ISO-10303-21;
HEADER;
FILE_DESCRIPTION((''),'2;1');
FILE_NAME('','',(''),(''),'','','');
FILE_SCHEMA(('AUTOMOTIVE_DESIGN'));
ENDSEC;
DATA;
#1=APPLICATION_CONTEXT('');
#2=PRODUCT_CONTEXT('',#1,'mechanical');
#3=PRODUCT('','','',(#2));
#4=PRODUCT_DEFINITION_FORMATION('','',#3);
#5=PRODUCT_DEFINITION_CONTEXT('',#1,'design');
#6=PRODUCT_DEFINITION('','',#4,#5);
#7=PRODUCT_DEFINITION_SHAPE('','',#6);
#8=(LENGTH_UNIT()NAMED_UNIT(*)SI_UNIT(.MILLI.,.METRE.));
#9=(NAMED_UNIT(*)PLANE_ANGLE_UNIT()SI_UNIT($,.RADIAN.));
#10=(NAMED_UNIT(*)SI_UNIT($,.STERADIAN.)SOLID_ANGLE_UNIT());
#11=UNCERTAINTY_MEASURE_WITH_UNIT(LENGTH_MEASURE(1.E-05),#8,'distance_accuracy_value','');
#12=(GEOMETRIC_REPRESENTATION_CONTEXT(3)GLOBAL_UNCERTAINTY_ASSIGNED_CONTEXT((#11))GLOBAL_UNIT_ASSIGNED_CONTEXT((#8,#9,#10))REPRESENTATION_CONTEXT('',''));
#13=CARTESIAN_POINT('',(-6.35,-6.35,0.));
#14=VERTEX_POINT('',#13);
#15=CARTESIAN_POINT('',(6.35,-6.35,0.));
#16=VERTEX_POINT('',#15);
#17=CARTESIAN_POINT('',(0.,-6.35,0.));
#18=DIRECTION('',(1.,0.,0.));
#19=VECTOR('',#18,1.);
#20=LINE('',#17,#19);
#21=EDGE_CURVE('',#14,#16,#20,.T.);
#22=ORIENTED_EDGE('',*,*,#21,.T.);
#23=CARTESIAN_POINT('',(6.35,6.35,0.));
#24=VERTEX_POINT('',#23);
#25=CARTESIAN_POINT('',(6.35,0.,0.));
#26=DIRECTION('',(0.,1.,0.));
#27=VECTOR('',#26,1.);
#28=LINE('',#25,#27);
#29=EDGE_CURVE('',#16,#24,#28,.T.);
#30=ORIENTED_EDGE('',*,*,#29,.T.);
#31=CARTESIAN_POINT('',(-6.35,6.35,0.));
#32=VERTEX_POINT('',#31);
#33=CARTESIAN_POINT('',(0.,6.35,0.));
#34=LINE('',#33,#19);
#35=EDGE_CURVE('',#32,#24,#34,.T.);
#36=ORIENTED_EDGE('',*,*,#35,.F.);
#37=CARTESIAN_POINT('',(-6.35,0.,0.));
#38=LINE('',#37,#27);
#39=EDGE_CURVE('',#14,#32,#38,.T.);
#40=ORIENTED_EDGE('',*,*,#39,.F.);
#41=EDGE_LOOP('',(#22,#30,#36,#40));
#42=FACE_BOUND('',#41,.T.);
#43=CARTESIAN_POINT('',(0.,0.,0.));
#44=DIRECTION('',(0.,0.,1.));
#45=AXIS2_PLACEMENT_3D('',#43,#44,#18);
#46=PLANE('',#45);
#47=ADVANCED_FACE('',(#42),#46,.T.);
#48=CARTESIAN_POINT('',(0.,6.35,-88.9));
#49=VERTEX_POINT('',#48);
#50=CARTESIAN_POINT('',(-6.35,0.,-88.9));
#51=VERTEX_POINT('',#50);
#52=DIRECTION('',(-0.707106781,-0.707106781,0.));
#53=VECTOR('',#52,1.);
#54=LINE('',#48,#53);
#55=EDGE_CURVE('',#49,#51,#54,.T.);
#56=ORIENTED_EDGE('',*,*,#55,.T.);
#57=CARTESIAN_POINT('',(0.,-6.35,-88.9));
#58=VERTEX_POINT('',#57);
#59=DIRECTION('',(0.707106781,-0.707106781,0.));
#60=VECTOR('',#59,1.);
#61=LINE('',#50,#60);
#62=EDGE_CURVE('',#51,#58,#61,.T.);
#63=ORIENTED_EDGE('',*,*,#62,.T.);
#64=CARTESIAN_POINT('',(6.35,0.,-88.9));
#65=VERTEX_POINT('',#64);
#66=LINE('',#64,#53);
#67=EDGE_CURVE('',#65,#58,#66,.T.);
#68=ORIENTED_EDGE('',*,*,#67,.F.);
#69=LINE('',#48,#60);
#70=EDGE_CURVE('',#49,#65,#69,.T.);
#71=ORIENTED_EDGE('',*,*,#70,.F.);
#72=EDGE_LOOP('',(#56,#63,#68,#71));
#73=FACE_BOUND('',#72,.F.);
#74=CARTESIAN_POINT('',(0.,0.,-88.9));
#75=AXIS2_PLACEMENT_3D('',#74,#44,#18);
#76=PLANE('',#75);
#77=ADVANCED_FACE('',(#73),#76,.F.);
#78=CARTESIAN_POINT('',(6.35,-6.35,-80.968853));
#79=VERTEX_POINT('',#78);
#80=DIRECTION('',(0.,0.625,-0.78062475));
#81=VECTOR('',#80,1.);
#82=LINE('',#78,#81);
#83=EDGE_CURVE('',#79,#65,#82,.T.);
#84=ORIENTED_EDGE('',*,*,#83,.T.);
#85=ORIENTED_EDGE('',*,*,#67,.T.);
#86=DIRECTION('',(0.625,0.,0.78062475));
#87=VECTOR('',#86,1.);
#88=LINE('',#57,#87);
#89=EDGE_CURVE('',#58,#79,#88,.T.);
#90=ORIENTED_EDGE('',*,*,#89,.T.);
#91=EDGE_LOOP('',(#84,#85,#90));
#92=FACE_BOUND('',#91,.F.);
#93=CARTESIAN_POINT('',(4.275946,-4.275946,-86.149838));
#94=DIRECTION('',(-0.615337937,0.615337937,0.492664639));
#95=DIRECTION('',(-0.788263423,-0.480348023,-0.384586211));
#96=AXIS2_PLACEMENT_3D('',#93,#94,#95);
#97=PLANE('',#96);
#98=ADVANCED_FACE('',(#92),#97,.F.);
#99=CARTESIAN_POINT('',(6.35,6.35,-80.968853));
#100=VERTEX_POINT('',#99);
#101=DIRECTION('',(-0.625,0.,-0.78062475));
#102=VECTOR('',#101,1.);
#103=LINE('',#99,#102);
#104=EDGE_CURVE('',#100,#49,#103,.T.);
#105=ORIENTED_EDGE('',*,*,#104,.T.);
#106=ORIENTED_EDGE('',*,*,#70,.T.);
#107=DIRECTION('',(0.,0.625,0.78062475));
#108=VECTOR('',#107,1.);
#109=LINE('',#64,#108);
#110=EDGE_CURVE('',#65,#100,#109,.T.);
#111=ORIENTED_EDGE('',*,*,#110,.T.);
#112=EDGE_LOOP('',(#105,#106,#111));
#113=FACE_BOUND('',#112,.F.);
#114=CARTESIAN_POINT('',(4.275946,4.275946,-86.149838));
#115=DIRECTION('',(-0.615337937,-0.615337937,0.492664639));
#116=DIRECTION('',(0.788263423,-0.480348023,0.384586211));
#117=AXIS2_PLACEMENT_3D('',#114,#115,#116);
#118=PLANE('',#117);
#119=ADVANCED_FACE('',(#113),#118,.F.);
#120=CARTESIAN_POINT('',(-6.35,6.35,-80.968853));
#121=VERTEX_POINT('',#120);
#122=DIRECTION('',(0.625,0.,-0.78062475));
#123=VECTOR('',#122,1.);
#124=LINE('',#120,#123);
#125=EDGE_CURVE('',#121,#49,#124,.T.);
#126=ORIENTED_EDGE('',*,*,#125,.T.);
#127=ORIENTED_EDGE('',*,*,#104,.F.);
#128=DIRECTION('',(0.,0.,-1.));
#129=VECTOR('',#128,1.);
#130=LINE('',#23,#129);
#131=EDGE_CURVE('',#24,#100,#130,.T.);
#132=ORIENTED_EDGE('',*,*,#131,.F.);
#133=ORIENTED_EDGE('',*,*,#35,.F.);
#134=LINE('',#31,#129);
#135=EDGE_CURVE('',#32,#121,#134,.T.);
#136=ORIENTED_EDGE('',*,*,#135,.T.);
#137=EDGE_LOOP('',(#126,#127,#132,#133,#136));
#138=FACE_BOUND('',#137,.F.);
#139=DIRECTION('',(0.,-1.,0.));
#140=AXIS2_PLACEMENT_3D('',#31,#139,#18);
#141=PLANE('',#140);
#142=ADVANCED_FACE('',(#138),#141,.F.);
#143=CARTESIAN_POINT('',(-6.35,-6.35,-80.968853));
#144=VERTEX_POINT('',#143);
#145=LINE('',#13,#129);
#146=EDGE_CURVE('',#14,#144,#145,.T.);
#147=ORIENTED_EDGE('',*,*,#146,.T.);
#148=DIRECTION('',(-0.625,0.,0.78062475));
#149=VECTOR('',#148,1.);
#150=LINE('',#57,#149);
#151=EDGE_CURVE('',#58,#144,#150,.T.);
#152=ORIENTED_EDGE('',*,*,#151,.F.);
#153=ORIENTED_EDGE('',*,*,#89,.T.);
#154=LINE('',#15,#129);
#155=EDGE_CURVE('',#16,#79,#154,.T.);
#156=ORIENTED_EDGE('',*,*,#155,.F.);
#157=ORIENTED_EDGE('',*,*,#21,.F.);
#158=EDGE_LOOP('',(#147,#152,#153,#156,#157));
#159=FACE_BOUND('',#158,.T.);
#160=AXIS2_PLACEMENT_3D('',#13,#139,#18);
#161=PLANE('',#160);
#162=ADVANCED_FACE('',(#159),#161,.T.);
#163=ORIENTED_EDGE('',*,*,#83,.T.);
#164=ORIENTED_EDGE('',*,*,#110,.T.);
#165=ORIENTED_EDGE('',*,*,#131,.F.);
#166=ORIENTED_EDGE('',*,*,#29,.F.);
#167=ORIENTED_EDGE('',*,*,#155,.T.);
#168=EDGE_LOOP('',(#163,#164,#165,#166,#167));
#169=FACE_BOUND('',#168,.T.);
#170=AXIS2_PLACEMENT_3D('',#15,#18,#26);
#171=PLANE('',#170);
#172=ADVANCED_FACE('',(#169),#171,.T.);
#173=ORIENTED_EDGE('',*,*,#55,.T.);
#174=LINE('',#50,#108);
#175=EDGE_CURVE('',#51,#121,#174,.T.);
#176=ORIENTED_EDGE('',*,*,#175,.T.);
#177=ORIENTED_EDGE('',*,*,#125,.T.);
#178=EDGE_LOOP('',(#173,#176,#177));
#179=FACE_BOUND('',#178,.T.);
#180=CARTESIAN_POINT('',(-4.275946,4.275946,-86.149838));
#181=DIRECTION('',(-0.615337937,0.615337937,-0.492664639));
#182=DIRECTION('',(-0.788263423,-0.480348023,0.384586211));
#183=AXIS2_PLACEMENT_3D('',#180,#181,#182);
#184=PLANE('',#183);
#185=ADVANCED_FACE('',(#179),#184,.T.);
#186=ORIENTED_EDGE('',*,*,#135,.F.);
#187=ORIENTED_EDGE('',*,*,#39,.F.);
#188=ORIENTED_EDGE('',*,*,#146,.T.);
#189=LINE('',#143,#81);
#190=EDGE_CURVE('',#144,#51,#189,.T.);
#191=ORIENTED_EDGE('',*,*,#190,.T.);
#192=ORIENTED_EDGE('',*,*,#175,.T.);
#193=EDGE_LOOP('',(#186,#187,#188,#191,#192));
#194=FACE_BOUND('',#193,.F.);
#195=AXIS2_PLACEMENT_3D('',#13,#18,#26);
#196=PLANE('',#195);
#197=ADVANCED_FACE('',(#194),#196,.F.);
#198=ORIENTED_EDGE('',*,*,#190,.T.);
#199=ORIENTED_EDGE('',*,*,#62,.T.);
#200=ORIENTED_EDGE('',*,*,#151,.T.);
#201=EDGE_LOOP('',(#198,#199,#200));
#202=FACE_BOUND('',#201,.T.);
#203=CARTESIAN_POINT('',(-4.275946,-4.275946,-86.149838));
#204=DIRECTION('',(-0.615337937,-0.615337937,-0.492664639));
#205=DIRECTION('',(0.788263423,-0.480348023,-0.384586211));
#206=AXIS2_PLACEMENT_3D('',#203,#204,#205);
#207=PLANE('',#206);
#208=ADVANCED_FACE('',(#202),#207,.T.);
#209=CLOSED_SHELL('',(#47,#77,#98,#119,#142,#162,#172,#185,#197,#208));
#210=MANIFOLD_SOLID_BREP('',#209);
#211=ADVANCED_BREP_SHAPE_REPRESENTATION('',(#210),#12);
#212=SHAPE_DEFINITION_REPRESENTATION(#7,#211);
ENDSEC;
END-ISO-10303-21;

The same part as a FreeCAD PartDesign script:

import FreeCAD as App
import Part
import Sketcher
from FreeCAD import Vector
Q = App.Units.Quantity


def add_polygon(sketch, points):
    """Adds a closed chain of lines whose ends are joined by coincident constraints."""
    first, n = sketch.GeometryCount, len(points)
    for a, b in zip(points, points[1:] + points[:1]):
        sketch.addGeometry(Part.LineSegment(App.Vector(*a, 0), App.Vector(*b, 0)), False)
    for i in range(n):
        sketch.addConstraint(Sketcher.Constraint("Coincident", first + i, 2, first + (i + 1) % n, 1))

doc = App.newDocument("Part")
body = doc.addObject("PartDesign::Body", "Body")

sketch1 = body.newObject("Sketcher::SketchObject", "Sketch")
sketch1.AttachmentSupport = (doc.getObject("XY_Plane"), [""])
sketch1.MapMode = "FlatFace"
add_polygon(sketch1, [(-6.35, 6.35), (-6.35, -6.35), (6.35, -6.35), (6.35, 6.35)])
sketch1.addConstraint([
    Sketcher.Constraint("Vertical", 0),
    Sketcher.Constraint("Horizontal", 1),
    Sketcher.Constraint("Vertical", 2),
    Sketcher.Constraint("Horizontal", 3),
    Sketcher.Constraint("Symmetric", 0, 2, 2, 2, -1, 1),
    Sketcher.Constraint("Equal", 3, 0),
    Sketcher.Constraint("DistanceX", 1, 1, 1, 2, Q("0.5 in")),
])
pad1 = body.newObject("PartDesign::Pad", "Pad")
pad1.Profile = sketch1
pad1.Length = Q("3.5 in")
pad1.Reversed = True

sketch2 = body.newObject("Sketcher::SketchObject", "Sketch001")
sketch2.Placement = App.Placement(Vector(-29.35487, 29.35487, -23.502706), App.Rotation(Vector(-0.788263423, -0.480348023, 0.384586211), Vector(0, 0.625, 0.78062475), Vector(-0.615337937, 0.615337937, -0.492664639), "ZXY"))
add_polygon(sketch2, [(-29.184241, -69.39754), (-29.184241, -59.23754), (-37.239924, -65.42879)])
sketch2.addConstraint([
    Sketcher.Constraint("Vertical", 0),
    Sketcher.Constraint("DistanceY", 0, 1, 0, 2, Q("0.4 in")),
    Sketcher.Constraint("Distance", 1, Q("0.4 in")),
    Sketcher.Constraint("DistanceY", 2, 2, 1, 2, Q("0.15625 in")),
    Sketcher.Constraint("DistanceX", 0, 2, -1, 1, Q("29.184241 mm")),
    Sketcher.Constraint("DistanceY", 0, 2, -1, 1, Q("59.23754 mm")),
])
pocket1 = body.newObject("PartDesign::Pocket", "Pocket")
pocket1.Profile = sketch2
pocket1.Length = Q("1 in")
pocket1.Reversed = True

sketch3 = body.newObject("Sketcher::SketchObject", "Sketch002")
sketch3.Placement = App.Placement(Vector(-29.35487, -29.35487, -23.502706), App.Rotation(Vector(0.788263423, -0.480348023, -0.384586211), Vector(0, -0.625, 0.78062475), Vector(-0.615337937, -0.615337937, -0.492664639), "ZXY"))
add_polygon(sketch3, [(37.239924, -65.42879), (29.184241, -59.23754), (29.184241, -69.39754)])
sketch3.addConstraint([
    Sketcher.Constraint("Vertical", 1),
    Sketcher.Constraint("DistanceY", 1, 2, 1, 1, Q("0.4 in")),
    Sketcher.Constraint("Distance", 0, Q("0.4 in")),
    Sketcher.Constraint("DistanceY", 1, 2, 2, 2, Q("0.15625 in")),
    Sketcher.Constraint("DistanceX", -1, 1, 0, 2, Q("29.184241 mm")),
    Sketcher.Constraint("DistanceY", 0, 2, -1, 1, Q("59.23754 mm")),
])
pocket2 = body.newObject("PartDesign::Pocket", "Pocket001")
pocket2.Profile = sketch3
pocket2.Length = Q("1 in")
pocket2.Reversed = True

sketch4 = body.newObject("Sketcher::SketchObject", "Sketch003")
sketch4.Placement = App.Placement(Vector(29.35487, -29.35487, -23.502706), App.Rotation(Vector(-0.788263423, -0.480348023, -0.384586211), Vector(0, -0.625, 0.78062475), Vector(-0.615337937, 0.615337937, 0.492664639), "ZXY"))
add_polygon(sketch4, [(29.184241, -59.23754), (29.184241, -69.39754), (37.239924, -65.42879)])
sketch4.addConstraint([
    Sketcher.Constraint("Vertical", 0),
    Sketcher.Constraint("DistanceY", 0, 2, 0, 1, Q("0.4 in")),
    Sketcher.Constraint("Distance", 2, Q("0.4 in")),
    Sketcher.Constraint("DistanceY", 0, 2, 1, 2, Q("0.15625 in")),
    Sketcher.Constraint("DistanceX", -1, 1, 0, 2, Q("29.184241 mm")),
    Sketcher.Constraint("DistanceY", 0, 2, -1, 1, Q("69.39754 mm")),
])
pocket3 = body.newObject("PartDesign::Pocket", "Pocket002")
pocket3.Profile = sketch4
pocket3.Length = Q("1 in")

sketch5 = body.newObject("Sketcher::SketchObject", "Sketch004")
sketch5.Placement = App.Placement(Vector(29.35487, 29.35487, -23.502706), App.Rotation(Vector(0.788263423, -0.480348023, 0.384586211), Vector(0, 0.625, 0.78062475), Vector(-0.615337937, -0.615337937, 0.492664639), "ZXY"))
add_polygon(sketch5, [(-29.184241, -69.39754), (-29.184241, -59.23754), (-37.239924, -65.42879)])
sketch5.addConstraint([
    Sketcher.Constraint("Vertical", 0),
    Sketcher.Constraint("DistanceY", 0, 1, 0, 2, Q("0.4 in")),
    Sketcher.Constraint("Distance", 1, Q("0.4 in")),
    Sketcher.Constraint("DistanceY", 2, 2, 1, 2, Q("0.15625 in")),
    Sketcher.Constraint("DistanceX", 0, 2, -1, 1, Q("29.184241 mm")),
    Sketcher.Constraint("DistanceY", 0, 2, -1, 1, Q("59.23754 mm")),
])
pocket4 = body.newObject("PartDesign::Pocket", "Pocket003")
pocket4.Profile = sketch5
pocket4.Length = Q("1 in")

doc.recompute()
